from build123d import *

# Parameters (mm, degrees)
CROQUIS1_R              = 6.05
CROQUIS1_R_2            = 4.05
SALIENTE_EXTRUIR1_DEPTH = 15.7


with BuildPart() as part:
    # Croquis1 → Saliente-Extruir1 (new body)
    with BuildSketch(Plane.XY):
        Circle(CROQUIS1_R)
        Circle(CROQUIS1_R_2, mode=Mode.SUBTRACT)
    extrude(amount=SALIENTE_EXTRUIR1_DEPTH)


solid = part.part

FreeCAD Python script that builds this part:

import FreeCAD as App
import Part
import Sketcher

V = App.Vector

doc = App.newDocument("Part")
params = doc.addObject("Spreadsheet::Sheet", "Params")
for row, (alias, value) in enumerate([
    ("sketch1_diameter", "12.1 mm"),
    ("sketch1_diameter2", "8.1 mm"),
    ("pad1_length", "15.7 mm"),
], start=1):
    params.set(f"A{row}", alias)
    params.set(f"B{row}", "=" + value)
    params.setAlias(f"B{row}", alias)

body = doc.addObject("PartDesign::Body", "Body")

sketch1 = doc.addObject("Sketcher::SketchObject", "Sketch")
body.addObject(sketch1)
sketch1.AttachmentSupport = (doc.XY_Plane, [""])
sketch1.MapMode = "FlatFace"
sketch1.addGeometry([
    Part.Circle(V(0, 0, 0), V(0, 0, 1), 6),
    Part.Circle(V(0, 0, 0), V(0, 0, 1), 4),
], False)
sketch1.addConstraint([
    Sketcher.Constraint("Coincident", 0, 3, -1, 1),
    Sketcher.Constraint("Coincident", 1, 3, -1, 1),
    Sketcher.Constraint("Diameter", 0, 12.1),
    Sketcher.Constraint("Diameter", 1, 8.1),
])
sketch1.setExpression("Constraints[2]", "Params.sketch1_diameter")
sketch1.setExpression("Constraints[3]", "Params.sketch1_diameter2")
pad1 = doc.addObject("PartDesign::Pad", "Pad")
body.addObject(pad1)
pad1.Profile = sketch1
pad1.setExpression("Length", "Params.pad1_length")

doc.recompute()
